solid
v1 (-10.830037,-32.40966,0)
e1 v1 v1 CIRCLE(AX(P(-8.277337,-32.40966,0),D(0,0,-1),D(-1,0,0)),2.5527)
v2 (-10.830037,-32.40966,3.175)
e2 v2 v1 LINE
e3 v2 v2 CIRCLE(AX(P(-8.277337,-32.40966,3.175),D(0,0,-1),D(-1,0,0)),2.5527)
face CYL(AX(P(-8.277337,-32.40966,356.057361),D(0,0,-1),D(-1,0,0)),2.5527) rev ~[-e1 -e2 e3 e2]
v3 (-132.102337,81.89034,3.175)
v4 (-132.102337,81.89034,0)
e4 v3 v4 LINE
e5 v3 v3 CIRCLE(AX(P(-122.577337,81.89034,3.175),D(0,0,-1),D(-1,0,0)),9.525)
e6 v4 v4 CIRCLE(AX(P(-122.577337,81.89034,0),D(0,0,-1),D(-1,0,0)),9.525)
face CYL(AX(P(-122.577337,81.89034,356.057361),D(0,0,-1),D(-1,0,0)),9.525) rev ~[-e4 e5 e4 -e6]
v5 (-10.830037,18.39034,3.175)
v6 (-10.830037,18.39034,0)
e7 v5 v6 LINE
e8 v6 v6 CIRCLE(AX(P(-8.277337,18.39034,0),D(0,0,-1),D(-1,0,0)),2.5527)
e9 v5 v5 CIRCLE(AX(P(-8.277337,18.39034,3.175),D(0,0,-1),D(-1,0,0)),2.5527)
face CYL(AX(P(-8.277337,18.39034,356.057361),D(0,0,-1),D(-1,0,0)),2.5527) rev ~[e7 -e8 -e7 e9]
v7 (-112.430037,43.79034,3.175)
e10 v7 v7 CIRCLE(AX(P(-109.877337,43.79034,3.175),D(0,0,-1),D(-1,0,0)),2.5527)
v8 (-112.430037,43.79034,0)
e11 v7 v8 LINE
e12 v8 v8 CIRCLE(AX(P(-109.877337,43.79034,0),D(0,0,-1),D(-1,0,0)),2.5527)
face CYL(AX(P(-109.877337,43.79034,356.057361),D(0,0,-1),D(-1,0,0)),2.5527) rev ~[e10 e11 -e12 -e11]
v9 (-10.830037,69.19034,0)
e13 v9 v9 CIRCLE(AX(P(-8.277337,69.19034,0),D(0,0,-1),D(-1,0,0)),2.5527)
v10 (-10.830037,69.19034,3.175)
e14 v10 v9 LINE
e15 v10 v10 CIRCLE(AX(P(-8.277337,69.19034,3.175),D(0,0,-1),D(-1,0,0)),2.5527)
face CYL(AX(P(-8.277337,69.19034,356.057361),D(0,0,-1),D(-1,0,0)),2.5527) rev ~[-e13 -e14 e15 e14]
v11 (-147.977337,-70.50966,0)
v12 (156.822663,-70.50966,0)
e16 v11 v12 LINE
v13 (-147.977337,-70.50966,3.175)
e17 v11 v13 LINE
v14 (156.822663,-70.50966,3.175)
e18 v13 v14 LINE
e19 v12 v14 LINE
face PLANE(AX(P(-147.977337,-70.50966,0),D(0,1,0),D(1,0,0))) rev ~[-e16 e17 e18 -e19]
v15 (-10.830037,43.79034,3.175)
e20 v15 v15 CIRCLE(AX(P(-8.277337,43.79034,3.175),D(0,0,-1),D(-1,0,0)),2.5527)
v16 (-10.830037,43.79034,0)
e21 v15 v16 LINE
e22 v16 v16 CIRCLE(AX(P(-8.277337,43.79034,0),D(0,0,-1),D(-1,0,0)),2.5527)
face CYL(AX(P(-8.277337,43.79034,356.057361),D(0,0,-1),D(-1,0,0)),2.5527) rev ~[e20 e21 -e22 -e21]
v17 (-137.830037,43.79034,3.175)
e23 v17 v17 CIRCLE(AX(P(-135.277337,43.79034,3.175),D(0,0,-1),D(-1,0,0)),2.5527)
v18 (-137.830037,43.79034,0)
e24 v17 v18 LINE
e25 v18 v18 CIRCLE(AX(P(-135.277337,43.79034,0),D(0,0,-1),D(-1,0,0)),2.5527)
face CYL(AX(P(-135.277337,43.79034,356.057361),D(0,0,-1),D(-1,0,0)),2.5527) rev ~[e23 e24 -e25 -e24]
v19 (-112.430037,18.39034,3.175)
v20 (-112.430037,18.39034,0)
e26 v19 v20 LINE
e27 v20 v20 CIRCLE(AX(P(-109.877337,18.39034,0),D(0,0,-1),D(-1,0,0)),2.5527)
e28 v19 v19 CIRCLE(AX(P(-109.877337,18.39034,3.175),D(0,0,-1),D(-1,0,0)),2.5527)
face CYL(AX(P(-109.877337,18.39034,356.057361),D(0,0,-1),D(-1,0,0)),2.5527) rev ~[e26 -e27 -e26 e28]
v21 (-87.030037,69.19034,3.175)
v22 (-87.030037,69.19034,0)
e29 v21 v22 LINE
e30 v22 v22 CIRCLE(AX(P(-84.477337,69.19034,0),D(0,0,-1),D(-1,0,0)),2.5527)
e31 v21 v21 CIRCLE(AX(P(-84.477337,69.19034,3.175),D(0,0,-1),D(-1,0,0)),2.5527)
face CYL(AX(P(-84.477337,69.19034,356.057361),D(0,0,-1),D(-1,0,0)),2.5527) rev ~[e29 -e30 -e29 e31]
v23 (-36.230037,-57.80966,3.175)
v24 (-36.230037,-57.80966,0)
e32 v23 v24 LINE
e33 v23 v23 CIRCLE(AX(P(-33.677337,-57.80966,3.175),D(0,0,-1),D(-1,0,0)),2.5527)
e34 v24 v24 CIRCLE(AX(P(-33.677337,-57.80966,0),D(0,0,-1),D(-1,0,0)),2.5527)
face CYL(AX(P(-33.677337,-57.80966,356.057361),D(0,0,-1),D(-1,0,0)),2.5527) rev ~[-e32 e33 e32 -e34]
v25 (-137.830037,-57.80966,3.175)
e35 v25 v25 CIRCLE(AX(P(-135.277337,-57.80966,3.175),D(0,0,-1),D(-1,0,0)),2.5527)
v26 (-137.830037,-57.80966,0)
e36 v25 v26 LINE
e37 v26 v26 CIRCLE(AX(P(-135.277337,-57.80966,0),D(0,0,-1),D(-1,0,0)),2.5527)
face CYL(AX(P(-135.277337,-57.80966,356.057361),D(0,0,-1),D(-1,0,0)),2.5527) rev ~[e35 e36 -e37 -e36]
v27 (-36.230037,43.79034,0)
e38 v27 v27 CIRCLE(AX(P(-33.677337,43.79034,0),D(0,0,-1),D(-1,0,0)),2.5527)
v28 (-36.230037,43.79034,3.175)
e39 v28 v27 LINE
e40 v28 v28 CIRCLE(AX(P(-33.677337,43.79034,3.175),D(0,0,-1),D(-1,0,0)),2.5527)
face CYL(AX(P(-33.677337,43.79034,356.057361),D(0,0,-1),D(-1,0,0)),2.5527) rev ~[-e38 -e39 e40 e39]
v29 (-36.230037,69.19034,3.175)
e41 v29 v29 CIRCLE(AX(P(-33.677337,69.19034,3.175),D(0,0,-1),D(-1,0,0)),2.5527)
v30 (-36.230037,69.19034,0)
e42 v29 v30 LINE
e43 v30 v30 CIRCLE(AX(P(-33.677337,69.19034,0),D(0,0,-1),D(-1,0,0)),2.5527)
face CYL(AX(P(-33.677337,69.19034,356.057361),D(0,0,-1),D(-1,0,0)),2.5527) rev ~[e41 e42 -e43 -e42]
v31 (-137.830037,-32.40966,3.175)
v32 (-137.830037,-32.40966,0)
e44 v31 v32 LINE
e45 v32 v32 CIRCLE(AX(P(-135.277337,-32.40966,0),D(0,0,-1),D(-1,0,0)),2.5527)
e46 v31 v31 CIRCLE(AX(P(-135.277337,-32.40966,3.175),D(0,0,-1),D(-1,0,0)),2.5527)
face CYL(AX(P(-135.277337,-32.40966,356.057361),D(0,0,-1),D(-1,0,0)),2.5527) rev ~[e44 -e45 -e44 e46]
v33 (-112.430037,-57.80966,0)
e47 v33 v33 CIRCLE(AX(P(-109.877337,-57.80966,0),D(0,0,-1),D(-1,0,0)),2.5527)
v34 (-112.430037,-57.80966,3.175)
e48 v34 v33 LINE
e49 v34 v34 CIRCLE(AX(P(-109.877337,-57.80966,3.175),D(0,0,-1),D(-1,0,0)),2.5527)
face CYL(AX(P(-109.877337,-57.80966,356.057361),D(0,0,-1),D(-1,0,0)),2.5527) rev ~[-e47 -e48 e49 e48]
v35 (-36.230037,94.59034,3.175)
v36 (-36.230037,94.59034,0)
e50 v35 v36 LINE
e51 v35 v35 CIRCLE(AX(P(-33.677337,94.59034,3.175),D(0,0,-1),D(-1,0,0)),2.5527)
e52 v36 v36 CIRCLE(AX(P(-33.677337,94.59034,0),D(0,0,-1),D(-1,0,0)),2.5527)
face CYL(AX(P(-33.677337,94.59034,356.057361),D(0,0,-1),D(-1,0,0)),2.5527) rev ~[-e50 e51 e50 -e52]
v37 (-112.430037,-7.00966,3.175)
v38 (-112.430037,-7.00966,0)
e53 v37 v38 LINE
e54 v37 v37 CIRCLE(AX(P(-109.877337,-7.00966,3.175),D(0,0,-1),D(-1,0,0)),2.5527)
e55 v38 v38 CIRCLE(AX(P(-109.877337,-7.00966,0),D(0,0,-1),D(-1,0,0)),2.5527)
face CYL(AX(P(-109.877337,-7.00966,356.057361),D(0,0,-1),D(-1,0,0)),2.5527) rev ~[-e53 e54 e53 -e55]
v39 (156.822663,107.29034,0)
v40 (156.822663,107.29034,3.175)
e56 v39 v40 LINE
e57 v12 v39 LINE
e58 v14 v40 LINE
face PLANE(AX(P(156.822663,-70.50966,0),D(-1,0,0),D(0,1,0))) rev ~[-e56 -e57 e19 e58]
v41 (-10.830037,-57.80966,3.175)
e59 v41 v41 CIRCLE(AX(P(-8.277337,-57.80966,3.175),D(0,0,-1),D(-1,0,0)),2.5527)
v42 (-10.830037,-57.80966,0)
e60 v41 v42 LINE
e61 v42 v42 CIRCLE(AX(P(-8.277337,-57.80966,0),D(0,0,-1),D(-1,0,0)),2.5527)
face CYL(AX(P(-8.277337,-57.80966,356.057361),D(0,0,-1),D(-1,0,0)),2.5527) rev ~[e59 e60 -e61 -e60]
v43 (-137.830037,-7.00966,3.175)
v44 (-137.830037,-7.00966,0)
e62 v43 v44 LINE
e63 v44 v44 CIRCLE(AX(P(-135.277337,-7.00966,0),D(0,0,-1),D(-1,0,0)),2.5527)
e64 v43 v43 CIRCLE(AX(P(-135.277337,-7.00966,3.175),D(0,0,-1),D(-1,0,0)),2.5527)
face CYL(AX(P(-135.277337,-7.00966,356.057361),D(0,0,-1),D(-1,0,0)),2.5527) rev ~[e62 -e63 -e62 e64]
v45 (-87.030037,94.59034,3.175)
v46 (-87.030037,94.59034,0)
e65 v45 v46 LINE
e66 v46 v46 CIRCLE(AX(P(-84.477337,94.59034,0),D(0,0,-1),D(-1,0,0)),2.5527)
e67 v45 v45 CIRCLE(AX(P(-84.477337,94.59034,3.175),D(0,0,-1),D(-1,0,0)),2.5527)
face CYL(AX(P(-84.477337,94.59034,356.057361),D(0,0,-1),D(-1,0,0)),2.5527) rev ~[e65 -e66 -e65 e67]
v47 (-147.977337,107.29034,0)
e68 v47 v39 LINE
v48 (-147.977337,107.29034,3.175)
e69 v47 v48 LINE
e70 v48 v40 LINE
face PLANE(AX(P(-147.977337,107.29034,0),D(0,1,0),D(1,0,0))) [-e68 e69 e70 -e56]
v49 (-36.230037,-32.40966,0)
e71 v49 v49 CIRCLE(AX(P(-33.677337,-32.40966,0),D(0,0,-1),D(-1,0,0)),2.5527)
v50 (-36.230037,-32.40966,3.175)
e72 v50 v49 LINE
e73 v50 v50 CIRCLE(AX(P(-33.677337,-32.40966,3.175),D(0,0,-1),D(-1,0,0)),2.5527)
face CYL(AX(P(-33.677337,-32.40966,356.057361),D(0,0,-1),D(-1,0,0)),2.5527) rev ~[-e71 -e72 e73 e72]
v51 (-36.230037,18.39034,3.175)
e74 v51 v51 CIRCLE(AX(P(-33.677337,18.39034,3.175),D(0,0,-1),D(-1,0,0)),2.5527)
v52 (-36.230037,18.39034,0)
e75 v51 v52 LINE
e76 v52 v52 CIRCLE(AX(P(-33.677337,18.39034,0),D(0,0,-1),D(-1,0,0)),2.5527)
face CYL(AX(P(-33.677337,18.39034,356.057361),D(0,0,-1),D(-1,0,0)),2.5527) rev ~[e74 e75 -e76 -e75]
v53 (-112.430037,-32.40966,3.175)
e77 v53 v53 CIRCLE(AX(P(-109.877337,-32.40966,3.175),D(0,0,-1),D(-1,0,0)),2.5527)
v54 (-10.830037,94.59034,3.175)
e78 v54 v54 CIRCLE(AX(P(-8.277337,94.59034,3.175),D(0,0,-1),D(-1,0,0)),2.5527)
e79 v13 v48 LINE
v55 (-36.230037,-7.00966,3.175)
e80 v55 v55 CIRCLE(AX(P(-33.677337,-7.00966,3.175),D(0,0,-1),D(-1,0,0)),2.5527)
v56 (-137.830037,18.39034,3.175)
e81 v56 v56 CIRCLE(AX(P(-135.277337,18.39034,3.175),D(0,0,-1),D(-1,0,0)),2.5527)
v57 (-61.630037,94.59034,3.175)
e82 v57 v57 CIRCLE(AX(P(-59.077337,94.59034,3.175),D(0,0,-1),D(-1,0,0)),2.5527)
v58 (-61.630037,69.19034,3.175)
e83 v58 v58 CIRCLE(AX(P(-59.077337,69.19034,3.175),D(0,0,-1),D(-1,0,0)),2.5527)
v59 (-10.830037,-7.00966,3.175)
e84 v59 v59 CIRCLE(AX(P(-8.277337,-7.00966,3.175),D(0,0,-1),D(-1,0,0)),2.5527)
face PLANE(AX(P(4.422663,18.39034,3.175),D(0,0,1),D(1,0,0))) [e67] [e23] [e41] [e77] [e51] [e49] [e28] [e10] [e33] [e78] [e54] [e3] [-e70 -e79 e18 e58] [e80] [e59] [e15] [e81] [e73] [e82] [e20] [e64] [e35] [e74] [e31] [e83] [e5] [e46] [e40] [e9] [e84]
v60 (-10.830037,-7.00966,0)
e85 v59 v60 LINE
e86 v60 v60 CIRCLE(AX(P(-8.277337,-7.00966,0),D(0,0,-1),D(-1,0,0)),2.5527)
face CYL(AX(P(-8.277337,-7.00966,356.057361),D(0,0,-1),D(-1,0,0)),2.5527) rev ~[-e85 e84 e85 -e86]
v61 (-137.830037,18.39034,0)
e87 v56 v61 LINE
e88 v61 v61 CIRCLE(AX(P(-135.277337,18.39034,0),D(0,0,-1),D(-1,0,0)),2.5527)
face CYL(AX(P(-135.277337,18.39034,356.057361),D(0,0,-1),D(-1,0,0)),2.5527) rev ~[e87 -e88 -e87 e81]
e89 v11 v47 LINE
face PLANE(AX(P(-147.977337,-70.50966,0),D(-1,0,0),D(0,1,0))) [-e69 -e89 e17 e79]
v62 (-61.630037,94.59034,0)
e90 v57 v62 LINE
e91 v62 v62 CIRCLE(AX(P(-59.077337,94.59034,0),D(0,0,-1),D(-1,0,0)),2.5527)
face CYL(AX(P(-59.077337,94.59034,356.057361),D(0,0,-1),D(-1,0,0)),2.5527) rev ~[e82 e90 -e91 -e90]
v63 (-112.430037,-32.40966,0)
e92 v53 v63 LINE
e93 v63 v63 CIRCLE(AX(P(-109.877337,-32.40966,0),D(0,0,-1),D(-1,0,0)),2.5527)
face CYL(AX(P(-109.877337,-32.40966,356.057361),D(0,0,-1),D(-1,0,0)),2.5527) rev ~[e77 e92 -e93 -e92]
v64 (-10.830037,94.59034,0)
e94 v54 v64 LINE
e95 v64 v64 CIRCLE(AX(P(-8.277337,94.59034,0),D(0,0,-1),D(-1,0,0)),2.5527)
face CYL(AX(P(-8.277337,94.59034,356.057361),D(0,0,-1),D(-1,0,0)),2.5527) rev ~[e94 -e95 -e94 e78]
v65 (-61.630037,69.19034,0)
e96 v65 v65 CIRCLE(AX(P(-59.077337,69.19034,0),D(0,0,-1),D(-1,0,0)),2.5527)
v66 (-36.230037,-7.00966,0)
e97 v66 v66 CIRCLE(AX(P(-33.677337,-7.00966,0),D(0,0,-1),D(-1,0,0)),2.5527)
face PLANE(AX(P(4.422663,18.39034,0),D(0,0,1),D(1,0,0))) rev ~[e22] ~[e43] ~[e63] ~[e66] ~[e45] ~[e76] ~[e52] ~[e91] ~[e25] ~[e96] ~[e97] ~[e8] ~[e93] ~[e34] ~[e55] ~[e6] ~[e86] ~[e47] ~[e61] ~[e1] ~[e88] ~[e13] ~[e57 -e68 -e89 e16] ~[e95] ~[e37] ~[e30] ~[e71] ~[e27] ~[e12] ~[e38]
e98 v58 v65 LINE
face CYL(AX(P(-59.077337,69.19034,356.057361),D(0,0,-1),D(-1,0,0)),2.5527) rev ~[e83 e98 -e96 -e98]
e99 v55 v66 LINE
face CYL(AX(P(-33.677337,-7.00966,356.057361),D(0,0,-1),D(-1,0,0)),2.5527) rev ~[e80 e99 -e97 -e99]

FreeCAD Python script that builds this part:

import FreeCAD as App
import Part
import Sketcher

V = App.Vector
Q = App.Units.Quantity


def add_polygon(sketch, points):
    """Adds a closed chain of lines whose ends are joined by coincident constraints."""
    first, n = sketch.GeometryCount, len(points)
    for a, b in zip(points, points[1:] + points[:1]):
        sketch.addGeometry(Part.LineSegment(App.Vector(*a, 0), App.Vector(*b, 0)), False)
    for i in range(n):
        sketch.addConstraint(Sketcher.Constraint("Coincident", first + i, 2, first + (i + 1) % n, 1))

doc = App.newDocument("Part")
body = doc.addObject("PartDesign::Body", "Body")

sketch1 = body.newObject("Sketcher::SketchObject", "Sketch")
sketch1.AttachmentSupport = (doc.getObject("XY_Plane"), [""])
sketch1.MapMode = "FlatFace"
add_polygon(sketch1, [(-148, 107), (-148, -71), (157, -71), (157, 107)])
sketch1.addConstraint(Sketcher.Constraint("Vertical", 0))
sketch1.addConstraint(Sketcher.Constraint("Horizontal", 1))
sketch1.addConstraint(Sketcher.Constraint("Vertical", 2))
sketch1.addConstraint(Sketcher.Constraint("Horizontal", 3))
sketch1.addConstraint(Sketcher.Constraint("DistanceX", 1, 1, 1, 2, Q("12 in")))
sketch1.addConstraint(Sketcher.Constraint("DistanceY", 0, 2, 0, 1, Q("7 in")))
sketch1.addConstraint(Sketcher.Constraint("DistanceY", 0, 2, -1, 1, Q("70.50966 mm")))
sketch1.addConstraint(Sketcher.Constraint("DistanceX", 0, 2, -1, 1, Q("147.977337 mm")))
pad1 = body.newObject("PartDesign::Pad", "Pad")
pad1.Profile = sketch1
pad1.Length = Q("0.125 in")

sketch2 = body.newObject("Sketcher::SketchObject", "Sketch001")
sketch2.AttachmentSupport = (doc.getObject("XY_Plane"), [""])
sketch2.MapMode = "FlatFace"
sketch2.AttachmentOffset = App.Placement(V(0, 0, 0.125 * 25.4), App.Rotation())
sketch2.addGeometry(Part.Circle(V(-33.7, -32.4, 0), V(0, 0, 1), 2.6), False)
sketch2.addGeometry(Part.Circle(V(-33.7, 94.6, 0), V(0, 0, 1), 2.6), False)
sketch2.addGeometry(Part.Circle(V(-33.7, 43.8, 0), V(0, 0, 1), 2.6), False)
sketch2.addGeometry(Part.Circle(V(-8.3, 43.8, 0), V(0, 0, 1), 2.6), False)
sketch2.addGeometry(Part.Circle(V(-33.7, -57.8, 0), V(0, 0, 1), 2.6), False)
sketch2.addGeometry(Part.Circle(V(-8.3, 18.4, 0), V(0, 0, 1), 2.6), False)
sketch2.addGeometry(Part.Circle(V(-8.3, -7, 0), V(0, 0, 1), 2.6), False)
sketch2.addGeometry(Part.Circle(V(-8.3, -57.8, 0), V(0, 0, 1), 2.6), False)
sketch2.addGeometry(Part.Circle(V(-84.5, 94.6, 0), V(0, 0, 1), 2.6), False)
sketch2.addGeometry(Part.Circle(V(-8.3, 94.6, 0), V(0, 0, 1), 2.6), False)
sketch2.addGeometry(Part.Circle(V(-8.3, -32.4, 0), V(0, 0, 1), 2.6), False)
sketch2.addGeometry(Part.Circle(V(-59.1, 69.2, 0), V(0, 0, 1), 2.6), False)
sketch2.addGeometry(Part.Circle(V(-33.7, 18.4, 0), V(0, 0, 1), 2.6), False)
sketch2.addGeometry(Part.Circle(V(-59.1, 94.6, 0), V(0, 0, 1), 2.6), False)
sketch2.addGeometry(Part.Circle(V(-33.7, -7, 0), V(0, 0, 1), 2.6), False)
sketch2.addGeometry(Part.Circle(V(-8.3, 69.2, 0), V(0, 0, 1), 2.6), False)
sketch2.addGeometry(Part.Circle(V(-84.5, 69.2, 0), V(0, 0, 1), 2.6), False)
sketch2.addGeometry(Part.Circle(V(-33.7, 69.2, 0), V(0, 0, 1), 2.6), False)
sketch2.addGeometry(Part.Circle(V(-135.3, 43.8, 0), V(0, 0, 1), 2.6), False)
sketch2.addGeometry(Part.Circle(V(-135.3, 18.4, 0), V(0, 0, 1), 2.6), False)
sketch2.addGeometry(Part.Circle(V(-109.9, -32.4, 0), V(0, 0, 1), 2.6), False)
sketch2.addGeometry(Part.Circle(V(-109.9, 43.8, 0), V(0, 0, 1), 2.6), False)
sketch2.addGeometry(Part.Circle(V(-109.9, -57.8, 0), V(0, 0, 1), 2.6), False)
sketch2.addGeometry(Part.Circle(V(-135.3, -57.8, 0), V(0, 0, 1), 2.6), False)
sketch2.addGeometry(Part.Circle(V(-109.9, -7, 0), V(0, 0, 1), 2.6), False)
sketch2.addGeometry(Part.Circle(V(-135.3, -32.4, 0), V(0, 0, 1), 2.6), False)
sketch2.addGeometry(Part.Circle(V(-109.9, 18.4, 0), V(0, 0, 1), 2.6), False)
sketch2.addGeometry(Part.Circle(V(-135.3, -7, 0), V(0, 0, 1), 2.6), False)
sketch2.addConstraint(Sketcher.Constraint("Equal", 0, 1))
sketch2.addConstraint(Sketcher.Constraint("Equal", 1, 2))
sketch2.addConstraint(Sketcher.Constraint("Equal", 2, 3))
sketch2.addConstraint(Sketcher.Constraint("Equal", 3, 4))
sketch2.addConstraint(Sketcher.Constraint("Equal", 4, 5))
sketch2.addConstraint(Sketcher.Constraint("Equal", 5, 6))
sketch2.addConstraint(Sketcher.Constraint("Equal", 6, 7))
sketch2.addConstraint(Sketcher.Constraint("Equal", 7, 8))
sketch2.addConstraint(Sketcher.Constraint("Equal", 8, 9))
sketch2.addConstraint(Sketcher.Constraint("Equal", 9, 10))
sketch2.addConstraint(Sketcher.Constraint("Equal", 10, 11))
sketch2.addConstraint(Sketcher.Constraint("Equal", 11, 12))
sketch2.addConstraint(Sketcher.Constraint("Equal", 12, 13))
sketch2.addConstraint(Sketcher.Constraint("Equal", 13, 14))
sketch2.addConstraint(Sketcher.Constraint("Equal", 14, 15))
sketch2.addConstraint(Sketcher.Constraint("Equal", 15, 16))
sketch2.addConstraint(Sketcher.Constraint("Equal", 16, 17))
sketch2.addConstraint(Sketcher.Constraint("Equal", 17, 18))
sketch2.addConstraint(Sketcher.Constraint("Equal", 18, 19))
sketch2.addConstraint(Sketcher.Constraint("Equal", 19, 20))
sketch2.addConstraint(Sketcher.Constraint("Equal", 20, 21))
sketch2.addConstraint(Sketcher.Constraint("Equal", 21, 22))
sketch2.addConstraint(Sketcher.Constraint("Equal", 22, 23))
sketch2.addConstraint(Sketcher.Constraint("Equal", 23, 24))
sketch2.addConstraint(Sketcher.Constraint("Equal", 24, 25))
sketch2.addConstraint(Sketcher.Constraint("Equal", 25, 26))
sketch2.addConstraint(Sketcher.Constraint("Equal", 26, 27))
sketch2.addConstraint(Sketcher.Constraint("Horizontal", 2, 3, 3, 3))
sketch2.addConstraint(Sketcher.Constraint("Horizontal", 4, 3, 7, 3))
sketch2.addConstraint(Sketcher.Constraint("Horizontal", 1, 3, 8, 3))
sketch2.addConstraint(Sketcher.Constraint("Horizontal", 8, 3, 9, 3))
sketch2.addConstraint(Sketcher.Constraint("Horizontal", 0, 3, 10, 3))
sketch2.addConstraint(Sketcher.Constraint("Horizontal", 5, 3, 12, 3))
sketch2.addConstraint(Sketcher.Constraint("Horizontal", 9, 3, 13, 3))
sketch2.addConstraint(Sketcher.Constraint("Horizontal", 6, 3, 14, 3))
sketch2.addConstraint(Sketcher.Constraint("Horizontal", 11, 3, 15, 3))
sketch2.addConstraint(Sketcher.Constraint("Horizontal", 15, 3, 16, 3))
sketch2.addConstraint(Sketcher.Constraint("Horizontal", 16, 3, 17, 3))
sketch2.addConstraint(Sketcher.Constraint("Horizontal", 3, 3, 18, 3))
sketch2.addConstraint(Sketcher.Constraint("Horizontal", 12, 3, 19, 3))
sketch2.addConstraint(Sketcher.Constraint("Horizontal", 10, 3, 20, 3))
sketch2.addConstraint(Sketcher.Constraint("Horizontal", 18, 3, 21, 3))
sketch2.addConstraint(Sketcher.Constraint("Horizontal", 7, 3, 22, 3))
sketch2.addConstraint(Sketcher.Constraint("Horizontal", 22, 3, 23, 3))
sketch2.addConstraint(Sketcher.Constraint("Horizontal", 14, 3, 24, 3))
sketch2.addConstraint(Sketcher.Constraint("Horizontal", 20, 3, 25, 3))
sketch2.addConstraint(Sketcher.Constraint("Horizontal", 19, 3, 26, 3))
sketch2.addConstraint(Sketcher.Constraint("Horizontal", 24, 3, 27, 3))
sketch2.addConstraint(Sketcher.Constraint("Vertical", 0, 3, 1, 3))
sketch2.addConstraint(Sketcher.Constraint("Vertical", 1, 3, 2, 3))
sketch2.addConstraint(Sketcher.Constraint("Vertical", 2, 3, 4, 3))
sketch2.addConstraint(Sketcher.Constraint("Vertical", 3, 3, 5, 3))
sketch2.addConstraint(Sketcher.Constraint("Vertical", 5, 3, 6, 3))
sketch2.addConstraint(Sketcher.Constraint("Vertical", 6, 3, 7, 3))
sketch2.addConstraint(Sketcher.Constraint("Vertical", 7, 3, 9, 3))
sketch2.addConstraint(Sketcher.Constraint("Vertical", 9, 3, 10, 3))
sketch2.addConstraint(Sketcher.Constraint("Vertical", 4, 3, 12, 3))
sketch2.addConstraint(Sketcher.Constraint("Vertical", 11, 3, 13, 3))
sketch2.addConstraint(Sketcher.Constraint("Vertical", 12, 3, 14, 3))
sketch2.addConstraint(Sketcher.Constraint("Vertical", 10, 3, 15, 3))
sketch2.addConstraint(Sketcher.Constraint("Vertical", 8, 3, 16, 3))
sketch2.addConstraint(Sketcher.Constraint("Vertical", 14, 3, 17, 3))
sketch2.addConstraint(Sketcher.Constraint("Vertical", 18, 3, 19, 3))
sketch2.addConstraint(Sketcher.Constraint("Vertical", 20, 3, 21, 3))
sketch2.addConstraint(Sketcher.Constraint("Vertical", 21, 3, 22, 3))
sketch2.addConstraint(Sketcher.Constraint("Vertical", 19, 3, 23, 3))
sketch2.addConstraint(Sketcher.Constraint("Vertical", 22, 3, 24, 3))
sketch2.addConstraint(Sketcher.Constraint("Vertical", 23, 3, 25, 3))
sketch2.addConstraint(Sketcher.Constraint("Vertical", 24, 3, 26, 3))
sketch2.addConstraint(Sketcher.Constraint("Vertical", 25, 3, 27, 3))
sketch2.addConstraint(Sketcher.Constraint("Diameter", 0, Q("0.201 in")))
sketch2.addConstraint(Sketcher.Constraint("DistanceY", 0, 3, 1, 3, Q("5 in")))
sketch2.addConstraint(Sketcher.Constraint("DistanceY", 2, 3, 1, 3, Q("2 in")))
sketch2.addConstraint(Sketcher.Constraint("DistanceX", 2, 3, 3, 3, Q("1 in")))
sketch2.addConstraint(Sketcher.Constraint("DistanceY", 4, 3, 0, 3, Q("1 in")))
sketch2.addConstraint(Sketcher.Constraint("DistanceY", 5, 3, 3, 3, Q("1 in")))
sketch2.addConstraint(Sketcher.Constraint("DistanceY", 6, 3, 5, 3, Q("1 in")))
sketch2.addConstraint(Sketcher.Constraint("DistanceX", 8, 3, 1, 3, Q("2 in")))
sketch2.addConstraint(Sketcher.Constraint("DistanceX", 11, 3, 1, 3, Q("1 in")))
sketch2.addConstraint(Sketcher.Constraint("DistanceY", 11, 3, 1, 3, Q("1 in")))
sketch2.addConstraint(Sketcher.Constraint("DistanceX", 18, 3, 16, 3, Q("2 in")))
sketch2.addConstraint(Sketcher.Constraint("DistanceX", 19, 3, 20, 3, Q("1 in")))
sketch2.addConstraint(Sketcher.Constraint("DistanceY", 0, 3, -1, 1, Q("32.40966 mm")))
sketch2.addConstraint(Sketcher.Constraint("DistanceX", 0, 3, -1, 1, Q("33.677337 mm")))
doc.recompute()
hole = body.newObject("PartDesign::Hole", "Hole")
hole.Profile = sketch2
hole.ThreadType = "None"
hole.Diameter = Q("0.201 in")
hole.DepthType = "ThroughAll"

sketch3 = body.newObject("Sketcher::SketchObject", "Sketch002")
sketch3.AttachmentSupport = (doc.getObject("XY_Plane"), [""])
sketch3.MapMode = "FlatFace"
sketch3.AttachmentOffset = App.Placement(V(0, 0, 0.125 * 25.4), App.Rotation())
sketch3.addGeometry(Part.Circle(V(-123, 82, 0), V(0, 0, 1), 10), False)
sketch3.addConstraint(Sketcher.Constraint("Diameter", 0, Q("0.75 in")))
sketch3.addConstraint(Sketcher.Constraint("DistanceY", -1, 1, 0, 3, Q("81.89034 mm")))
sketch3.addConstraint(Sketcher.Constraint("DistanceX", 0, 3, -1, 1, Q("122.577337 mm")))
doc.recompute()
hole2 = body.newObject("PartDesign::Hole", "Hole001")
hole2.Profile = sketch3
hole2.ThreadType = "None"
hole2.Diameter = Q("0.75 in")
hole2.DepthType = "ThroughAll"

doc.recompute()
